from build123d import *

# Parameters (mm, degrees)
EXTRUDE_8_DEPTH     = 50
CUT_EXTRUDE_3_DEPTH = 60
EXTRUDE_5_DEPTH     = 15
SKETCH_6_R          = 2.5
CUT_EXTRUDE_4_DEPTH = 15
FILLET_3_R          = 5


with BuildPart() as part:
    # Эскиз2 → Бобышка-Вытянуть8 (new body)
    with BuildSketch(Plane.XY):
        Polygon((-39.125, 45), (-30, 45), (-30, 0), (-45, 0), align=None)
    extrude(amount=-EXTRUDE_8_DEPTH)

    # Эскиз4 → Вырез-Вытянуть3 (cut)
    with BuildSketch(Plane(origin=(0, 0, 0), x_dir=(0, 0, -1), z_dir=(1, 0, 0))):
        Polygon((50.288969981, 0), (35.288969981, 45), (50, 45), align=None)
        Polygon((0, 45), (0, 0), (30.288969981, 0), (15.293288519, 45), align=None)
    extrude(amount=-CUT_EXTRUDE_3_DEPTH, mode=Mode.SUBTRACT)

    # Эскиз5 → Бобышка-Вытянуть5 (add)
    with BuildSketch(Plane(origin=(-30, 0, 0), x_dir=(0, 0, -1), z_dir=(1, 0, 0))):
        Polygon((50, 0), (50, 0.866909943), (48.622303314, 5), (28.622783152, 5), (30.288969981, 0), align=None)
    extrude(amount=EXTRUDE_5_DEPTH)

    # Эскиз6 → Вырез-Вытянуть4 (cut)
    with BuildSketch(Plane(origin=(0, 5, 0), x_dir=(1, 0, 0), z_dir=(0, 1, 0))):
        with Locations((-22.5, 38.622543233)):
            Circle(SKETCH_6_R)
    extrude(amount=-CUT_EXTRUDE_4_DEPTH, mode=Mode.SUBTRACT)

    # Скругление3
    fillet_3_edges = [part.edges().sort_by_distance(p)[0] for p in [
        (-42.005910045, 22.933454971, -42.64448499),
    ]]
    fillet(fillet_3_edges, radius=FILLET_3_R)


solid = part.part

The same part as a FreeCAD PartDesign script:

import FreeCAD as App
import Part
import Sketcher

V = App.Vector
Q = App.Units.Quantity


def edges_at(feature, points):
    """Names of the edges that pass closest to the given points."""
    edges = feature.Shape.Edges
    near = lambda p: min(range(len(edges)), key=lambda i: edges[i].distToShape(Part.Vertex(*p))[0])
    return sorted({f"Edge{near(p) + 1}" for p in points})

doc = App.newDocument("Part")
params = doc.addObject("Spreadsheet::Sheet", "Params")
for row, (alias, value) in enumerate([
    ("sketch1_width", "15 mm"),
    ("sketch1_height", "45 mm"),
    ("pad1_length", "50 mm"),
    ("sketch2_width", "45 mm"),
    ("pocket1_length", "60 mm"),
    ("pad2_length", "15 mm"),
    ("sketch4_diameter", "5 mm"),
    ("pocket2_length", "15 mm"),
    ("fillet_radius", "5 mm"),
], start=1):
    params.set(f"A{row}", alias)
    params.set(f"B{row}", "=" + value)
    params.setAlias(f"B{row}", alias)

body = doc.addObject("PartDesign::Body", "Body")

sketch1 = body.newObject("Sketcher::SketchObject", "Sketch")
sketch1.AttachmentSupport = (doc.getObject("XY_Plane"), [""])
sketch1.MapMode = "FlatFace"
sketch1.addGeometry([
    Part.LineSegment(V(-30, 45, 0), V(-39.125, 45, 0)),
    Part.LineSegment(V(-39.125, 45, 0), V(-45, 0, 0)),
    Part.LineSegment(V(-45, 0, 0), V(-30, 0, 0)),
    Part.LineSegment(V(-30, 0, 0), V(-30, 45, 0)),
], False)
sketch1.addConstraint([
    Sketcher.Constraint("Coincident", 0, 2, 1, 1),
    Sketcher.Constraint("Coincident", 1, 2, 2, 1),
    Sketcher.Constraint("Coincident", 2, 2, 3, 1),
    Sketcher.Constraint("Coincident", 3, 2, 0, 1),
    Sketcher.Constraint("Horizontal", 0),
    Sketcher.Constraint("Horizontal", 2),
    Sketcher.Constraint("Vertical", 3),
    Sketcher.Constraint("PointOnObject", 1, 2, -1),
    Sketcher.Constraint("DistanceX", 2, 1, 2, 2, 15.0),
    Sketcher.Constraint("DistanceY", 3, 1, 3, 2, 45.0),
    Sketcher.Constraint("DistanceX", 1, 2, -1, 1, 45.0),
    Sketcher.Constraint("DistanceX", 0, 2, 0, 1, 9.125),
])
sketch1.setExpression("Constraints[8]", "Params.sketch1_width")
sketch1.setExpression("Constraints[9]", "Params.sketch1_height")
pad1 = body.newObject("PartDesign::Pad", "Pad")
pad1.Profile = sketch1
pad1.setExpression("Length", "Params.pad1_length")
pad1.Reversed = True

sketch2 = body.newObject("Sketcher::SketchObject", "Sketch001")
sketch2.AttachmentSupport = (doc.getObject("YZ_Plane"), [""])
sketch2.MapMode = "FlatFace"
sketch2.addGeometry([
    Part.LineSegment(V(45, -35.28897, 0), V(0, -50.28897, 0)),
    Part.LineSegment(V(0, -50.28897, 0), V(45, -50, 0)),
    Part.LineSegment(V(45, -50, 0), V(45, -35.28897, 0)),
    Part.LineSegment(V(45, 0, 0), V(0, 0, 0)),
    Part.LineSegment(V(0, 0, 0), V(0, -30.28897, 0)),
    Part.LineSegment(V(0, -30.28897, 0), V(45, -15.293289, 0)),
    Part.LineSegment(V(45, -15.293289, 0), V(45, 0, 0)),
], False)
sketch2.addConstraint([
    Sketcher.Constraint("Coincident", 0, 2, 1, 1),
    Sketcher.Constraint("Coincident", 1, 2, 2, 1),
    Sketcher.Constraint("Coincident", 2, 2, 0, 1),
    Sketcher.Constraint("Coincident", 3, 2, 4, 1),
    Sketcher.Constraint("Coincident", 4, 2, 5, 1),
    Sketcher.Constraint("Coincident", 5, 2, 6, 1),
    Sketcher.Constraint("Coincident", 6, 2, 3, 1),
    Sketcher.Constraint("Vertical", 2),
    Sketcher.Constraint("Horizontal", 3),
    Sketcher.Constraint("Vertical", 4),
    Sketcher.Constraint("Vertical", 6),
    Sketcher.Constraint("Coincident", 3, 2, -1, 1),
    Sketcher.Constraint("PointOnObject", 0, 2, -2),
    Sketcher.Constraint("Vertical", 2, 2, 5, 2),
    Sketcher.Constraint("DistanceX", 3, 2, 3, 1, 45.0),
    Sketcher.Constraint("DistanceY", 1, 2, -1, 1, 50.0),
    Sketcher.Constraint("DistanceY", 0, 2, 2, 2, 15.0),
    Sketcher.Constraint("DistanceY", 0, 2, 4, 2, 20.0),
    Sketcher.Constraint("Angle", 5, Q("18.43 deg")),
    Sketcher.Constraint("DistanceY", 2, 1, 2, 2, 14.71103),
])
sketch2.setExpression("Constraints[14]", "Params.sketch2_width")
pocket1 = body.newObject("PartDesign::Pocket", "Pocket")
pocket1.Profile = sketch2
pocket1.setExpression("Length", "Params.pocket1_length")

sketch3 = body.newObject("Sketcher::SketchObject", "Sketch002")
sketch3.AttachmentSupport = (doc.getObject("YZ_Plane"), [""])
sketch3.MapMode = "FlatFace"
sketch3.AttachmentOffset = App.Placement(V(0, 0, -30), App.Rotation())
sketch3.addGeometry([
    Part.LineSegment(V(0, -50, 0), V(0.86691, -50, 0)),
    Part.LineSegment(V(0.86691, -50, 0), V(5, -48.622303, 0)),
    Part.LineSegment(V(5, -48.622303, 0), V(5, -28.622783, 0)),
    Part.LineSegment(V(5, -28.622783, 0), V(0, -30.28897, 0)),
    Part.LineSegment(V(0, -30.28897, 0), V(0, -50, 0)),
], False)
sketch3.addConstraint([
    Sketcher.Constraint("Coincident", 0, 2, 1, 1),
    Sketcher.Constraint("Coincident", 1, 2, 2, 1),
    Sketcher.Constraint("Coincident", 2, 2, 3, 1),
    Sketcher.Constraint("Coincident", 3, 2, 4, 1),
    Sketcher.Constraint("Coincident", 4, 2, 0, 1),
    Sketcher.Constraint("Horizontal", 0),
    Sketcher.Constraint("Vertical", 2),
    Sketcher.Constraint("Vertical", 4),
    Sketcher.Constraint("PointOnObject", 3, 2, -2),
    Sketcher.Constraint("DistanceY", 0, 2, -1, 1, 50.0),
    Sketcher.Constraint("DistanceX", -1, 1, 1, 2, 5.0),
    Sketcher.Constraint("Angle", 3, Q("-161.57 deg")),
    Sketcher.Constraint("DistanceX", 0, 1, 0, 2, 0.86691),
    Sketcher.Constraint("DistanceY", 2, 1, 2, 2, 19.99952),
    Sketcher.Constraint("DistanceY", 4, 2, 4, 1, 19.71103),
])
pad2 = body.newObject("PartDesign::Pad", "Pad001")
pad2.Profile = sketch3
pad2.setExpression("Length", "Params.pad2_length")

sketch4 = body.newObject("Sketcher::SketchObject", "Sketch003")
sketch4.AttachmentSupport = (doc.getObject("XZ_Plane"), [""])
sketch4.MapMode = "FlatFace"
sketch4.AttachmentOffset = App.Placement(V(0, 0, -5), App.Rotation())
sketch4.addGeometry(Part.Circle(V(-22.5, -38.622543, 0), V(0, 0, 1), 2.5), False)
sketch4.addConstraint([
    Sketcher.Constraint("Diameter", 0, 5.0),
    Sketcher.Constraint("DistanceX", 0, 3, -1, 1, 22.5),
    Sketcher.Constraint("DistanceY", 0, 3, -1, 1, 38.622543),
])
sketch4.setExpression("Constraints[0]", "Params.sketch4_diameter")
pocket2 = body.newObject("PartDesign::Pocket", "Pocket001")
pocket2.Profile = sketch4
pocket2.setExpression("Length", "Params.pocket2_length")
pocket2.Reversed = True
doc.recompute()

fillet = body.newObject("PartDesign::Fillet", "Fillet")
fillet.Base = (pocket2, edges_at(pocket2, [(-42.006, 22.933, -42.644)]))
fillet.setExpression("Radius", "Params.fillet_radius")

doc.recompute()
